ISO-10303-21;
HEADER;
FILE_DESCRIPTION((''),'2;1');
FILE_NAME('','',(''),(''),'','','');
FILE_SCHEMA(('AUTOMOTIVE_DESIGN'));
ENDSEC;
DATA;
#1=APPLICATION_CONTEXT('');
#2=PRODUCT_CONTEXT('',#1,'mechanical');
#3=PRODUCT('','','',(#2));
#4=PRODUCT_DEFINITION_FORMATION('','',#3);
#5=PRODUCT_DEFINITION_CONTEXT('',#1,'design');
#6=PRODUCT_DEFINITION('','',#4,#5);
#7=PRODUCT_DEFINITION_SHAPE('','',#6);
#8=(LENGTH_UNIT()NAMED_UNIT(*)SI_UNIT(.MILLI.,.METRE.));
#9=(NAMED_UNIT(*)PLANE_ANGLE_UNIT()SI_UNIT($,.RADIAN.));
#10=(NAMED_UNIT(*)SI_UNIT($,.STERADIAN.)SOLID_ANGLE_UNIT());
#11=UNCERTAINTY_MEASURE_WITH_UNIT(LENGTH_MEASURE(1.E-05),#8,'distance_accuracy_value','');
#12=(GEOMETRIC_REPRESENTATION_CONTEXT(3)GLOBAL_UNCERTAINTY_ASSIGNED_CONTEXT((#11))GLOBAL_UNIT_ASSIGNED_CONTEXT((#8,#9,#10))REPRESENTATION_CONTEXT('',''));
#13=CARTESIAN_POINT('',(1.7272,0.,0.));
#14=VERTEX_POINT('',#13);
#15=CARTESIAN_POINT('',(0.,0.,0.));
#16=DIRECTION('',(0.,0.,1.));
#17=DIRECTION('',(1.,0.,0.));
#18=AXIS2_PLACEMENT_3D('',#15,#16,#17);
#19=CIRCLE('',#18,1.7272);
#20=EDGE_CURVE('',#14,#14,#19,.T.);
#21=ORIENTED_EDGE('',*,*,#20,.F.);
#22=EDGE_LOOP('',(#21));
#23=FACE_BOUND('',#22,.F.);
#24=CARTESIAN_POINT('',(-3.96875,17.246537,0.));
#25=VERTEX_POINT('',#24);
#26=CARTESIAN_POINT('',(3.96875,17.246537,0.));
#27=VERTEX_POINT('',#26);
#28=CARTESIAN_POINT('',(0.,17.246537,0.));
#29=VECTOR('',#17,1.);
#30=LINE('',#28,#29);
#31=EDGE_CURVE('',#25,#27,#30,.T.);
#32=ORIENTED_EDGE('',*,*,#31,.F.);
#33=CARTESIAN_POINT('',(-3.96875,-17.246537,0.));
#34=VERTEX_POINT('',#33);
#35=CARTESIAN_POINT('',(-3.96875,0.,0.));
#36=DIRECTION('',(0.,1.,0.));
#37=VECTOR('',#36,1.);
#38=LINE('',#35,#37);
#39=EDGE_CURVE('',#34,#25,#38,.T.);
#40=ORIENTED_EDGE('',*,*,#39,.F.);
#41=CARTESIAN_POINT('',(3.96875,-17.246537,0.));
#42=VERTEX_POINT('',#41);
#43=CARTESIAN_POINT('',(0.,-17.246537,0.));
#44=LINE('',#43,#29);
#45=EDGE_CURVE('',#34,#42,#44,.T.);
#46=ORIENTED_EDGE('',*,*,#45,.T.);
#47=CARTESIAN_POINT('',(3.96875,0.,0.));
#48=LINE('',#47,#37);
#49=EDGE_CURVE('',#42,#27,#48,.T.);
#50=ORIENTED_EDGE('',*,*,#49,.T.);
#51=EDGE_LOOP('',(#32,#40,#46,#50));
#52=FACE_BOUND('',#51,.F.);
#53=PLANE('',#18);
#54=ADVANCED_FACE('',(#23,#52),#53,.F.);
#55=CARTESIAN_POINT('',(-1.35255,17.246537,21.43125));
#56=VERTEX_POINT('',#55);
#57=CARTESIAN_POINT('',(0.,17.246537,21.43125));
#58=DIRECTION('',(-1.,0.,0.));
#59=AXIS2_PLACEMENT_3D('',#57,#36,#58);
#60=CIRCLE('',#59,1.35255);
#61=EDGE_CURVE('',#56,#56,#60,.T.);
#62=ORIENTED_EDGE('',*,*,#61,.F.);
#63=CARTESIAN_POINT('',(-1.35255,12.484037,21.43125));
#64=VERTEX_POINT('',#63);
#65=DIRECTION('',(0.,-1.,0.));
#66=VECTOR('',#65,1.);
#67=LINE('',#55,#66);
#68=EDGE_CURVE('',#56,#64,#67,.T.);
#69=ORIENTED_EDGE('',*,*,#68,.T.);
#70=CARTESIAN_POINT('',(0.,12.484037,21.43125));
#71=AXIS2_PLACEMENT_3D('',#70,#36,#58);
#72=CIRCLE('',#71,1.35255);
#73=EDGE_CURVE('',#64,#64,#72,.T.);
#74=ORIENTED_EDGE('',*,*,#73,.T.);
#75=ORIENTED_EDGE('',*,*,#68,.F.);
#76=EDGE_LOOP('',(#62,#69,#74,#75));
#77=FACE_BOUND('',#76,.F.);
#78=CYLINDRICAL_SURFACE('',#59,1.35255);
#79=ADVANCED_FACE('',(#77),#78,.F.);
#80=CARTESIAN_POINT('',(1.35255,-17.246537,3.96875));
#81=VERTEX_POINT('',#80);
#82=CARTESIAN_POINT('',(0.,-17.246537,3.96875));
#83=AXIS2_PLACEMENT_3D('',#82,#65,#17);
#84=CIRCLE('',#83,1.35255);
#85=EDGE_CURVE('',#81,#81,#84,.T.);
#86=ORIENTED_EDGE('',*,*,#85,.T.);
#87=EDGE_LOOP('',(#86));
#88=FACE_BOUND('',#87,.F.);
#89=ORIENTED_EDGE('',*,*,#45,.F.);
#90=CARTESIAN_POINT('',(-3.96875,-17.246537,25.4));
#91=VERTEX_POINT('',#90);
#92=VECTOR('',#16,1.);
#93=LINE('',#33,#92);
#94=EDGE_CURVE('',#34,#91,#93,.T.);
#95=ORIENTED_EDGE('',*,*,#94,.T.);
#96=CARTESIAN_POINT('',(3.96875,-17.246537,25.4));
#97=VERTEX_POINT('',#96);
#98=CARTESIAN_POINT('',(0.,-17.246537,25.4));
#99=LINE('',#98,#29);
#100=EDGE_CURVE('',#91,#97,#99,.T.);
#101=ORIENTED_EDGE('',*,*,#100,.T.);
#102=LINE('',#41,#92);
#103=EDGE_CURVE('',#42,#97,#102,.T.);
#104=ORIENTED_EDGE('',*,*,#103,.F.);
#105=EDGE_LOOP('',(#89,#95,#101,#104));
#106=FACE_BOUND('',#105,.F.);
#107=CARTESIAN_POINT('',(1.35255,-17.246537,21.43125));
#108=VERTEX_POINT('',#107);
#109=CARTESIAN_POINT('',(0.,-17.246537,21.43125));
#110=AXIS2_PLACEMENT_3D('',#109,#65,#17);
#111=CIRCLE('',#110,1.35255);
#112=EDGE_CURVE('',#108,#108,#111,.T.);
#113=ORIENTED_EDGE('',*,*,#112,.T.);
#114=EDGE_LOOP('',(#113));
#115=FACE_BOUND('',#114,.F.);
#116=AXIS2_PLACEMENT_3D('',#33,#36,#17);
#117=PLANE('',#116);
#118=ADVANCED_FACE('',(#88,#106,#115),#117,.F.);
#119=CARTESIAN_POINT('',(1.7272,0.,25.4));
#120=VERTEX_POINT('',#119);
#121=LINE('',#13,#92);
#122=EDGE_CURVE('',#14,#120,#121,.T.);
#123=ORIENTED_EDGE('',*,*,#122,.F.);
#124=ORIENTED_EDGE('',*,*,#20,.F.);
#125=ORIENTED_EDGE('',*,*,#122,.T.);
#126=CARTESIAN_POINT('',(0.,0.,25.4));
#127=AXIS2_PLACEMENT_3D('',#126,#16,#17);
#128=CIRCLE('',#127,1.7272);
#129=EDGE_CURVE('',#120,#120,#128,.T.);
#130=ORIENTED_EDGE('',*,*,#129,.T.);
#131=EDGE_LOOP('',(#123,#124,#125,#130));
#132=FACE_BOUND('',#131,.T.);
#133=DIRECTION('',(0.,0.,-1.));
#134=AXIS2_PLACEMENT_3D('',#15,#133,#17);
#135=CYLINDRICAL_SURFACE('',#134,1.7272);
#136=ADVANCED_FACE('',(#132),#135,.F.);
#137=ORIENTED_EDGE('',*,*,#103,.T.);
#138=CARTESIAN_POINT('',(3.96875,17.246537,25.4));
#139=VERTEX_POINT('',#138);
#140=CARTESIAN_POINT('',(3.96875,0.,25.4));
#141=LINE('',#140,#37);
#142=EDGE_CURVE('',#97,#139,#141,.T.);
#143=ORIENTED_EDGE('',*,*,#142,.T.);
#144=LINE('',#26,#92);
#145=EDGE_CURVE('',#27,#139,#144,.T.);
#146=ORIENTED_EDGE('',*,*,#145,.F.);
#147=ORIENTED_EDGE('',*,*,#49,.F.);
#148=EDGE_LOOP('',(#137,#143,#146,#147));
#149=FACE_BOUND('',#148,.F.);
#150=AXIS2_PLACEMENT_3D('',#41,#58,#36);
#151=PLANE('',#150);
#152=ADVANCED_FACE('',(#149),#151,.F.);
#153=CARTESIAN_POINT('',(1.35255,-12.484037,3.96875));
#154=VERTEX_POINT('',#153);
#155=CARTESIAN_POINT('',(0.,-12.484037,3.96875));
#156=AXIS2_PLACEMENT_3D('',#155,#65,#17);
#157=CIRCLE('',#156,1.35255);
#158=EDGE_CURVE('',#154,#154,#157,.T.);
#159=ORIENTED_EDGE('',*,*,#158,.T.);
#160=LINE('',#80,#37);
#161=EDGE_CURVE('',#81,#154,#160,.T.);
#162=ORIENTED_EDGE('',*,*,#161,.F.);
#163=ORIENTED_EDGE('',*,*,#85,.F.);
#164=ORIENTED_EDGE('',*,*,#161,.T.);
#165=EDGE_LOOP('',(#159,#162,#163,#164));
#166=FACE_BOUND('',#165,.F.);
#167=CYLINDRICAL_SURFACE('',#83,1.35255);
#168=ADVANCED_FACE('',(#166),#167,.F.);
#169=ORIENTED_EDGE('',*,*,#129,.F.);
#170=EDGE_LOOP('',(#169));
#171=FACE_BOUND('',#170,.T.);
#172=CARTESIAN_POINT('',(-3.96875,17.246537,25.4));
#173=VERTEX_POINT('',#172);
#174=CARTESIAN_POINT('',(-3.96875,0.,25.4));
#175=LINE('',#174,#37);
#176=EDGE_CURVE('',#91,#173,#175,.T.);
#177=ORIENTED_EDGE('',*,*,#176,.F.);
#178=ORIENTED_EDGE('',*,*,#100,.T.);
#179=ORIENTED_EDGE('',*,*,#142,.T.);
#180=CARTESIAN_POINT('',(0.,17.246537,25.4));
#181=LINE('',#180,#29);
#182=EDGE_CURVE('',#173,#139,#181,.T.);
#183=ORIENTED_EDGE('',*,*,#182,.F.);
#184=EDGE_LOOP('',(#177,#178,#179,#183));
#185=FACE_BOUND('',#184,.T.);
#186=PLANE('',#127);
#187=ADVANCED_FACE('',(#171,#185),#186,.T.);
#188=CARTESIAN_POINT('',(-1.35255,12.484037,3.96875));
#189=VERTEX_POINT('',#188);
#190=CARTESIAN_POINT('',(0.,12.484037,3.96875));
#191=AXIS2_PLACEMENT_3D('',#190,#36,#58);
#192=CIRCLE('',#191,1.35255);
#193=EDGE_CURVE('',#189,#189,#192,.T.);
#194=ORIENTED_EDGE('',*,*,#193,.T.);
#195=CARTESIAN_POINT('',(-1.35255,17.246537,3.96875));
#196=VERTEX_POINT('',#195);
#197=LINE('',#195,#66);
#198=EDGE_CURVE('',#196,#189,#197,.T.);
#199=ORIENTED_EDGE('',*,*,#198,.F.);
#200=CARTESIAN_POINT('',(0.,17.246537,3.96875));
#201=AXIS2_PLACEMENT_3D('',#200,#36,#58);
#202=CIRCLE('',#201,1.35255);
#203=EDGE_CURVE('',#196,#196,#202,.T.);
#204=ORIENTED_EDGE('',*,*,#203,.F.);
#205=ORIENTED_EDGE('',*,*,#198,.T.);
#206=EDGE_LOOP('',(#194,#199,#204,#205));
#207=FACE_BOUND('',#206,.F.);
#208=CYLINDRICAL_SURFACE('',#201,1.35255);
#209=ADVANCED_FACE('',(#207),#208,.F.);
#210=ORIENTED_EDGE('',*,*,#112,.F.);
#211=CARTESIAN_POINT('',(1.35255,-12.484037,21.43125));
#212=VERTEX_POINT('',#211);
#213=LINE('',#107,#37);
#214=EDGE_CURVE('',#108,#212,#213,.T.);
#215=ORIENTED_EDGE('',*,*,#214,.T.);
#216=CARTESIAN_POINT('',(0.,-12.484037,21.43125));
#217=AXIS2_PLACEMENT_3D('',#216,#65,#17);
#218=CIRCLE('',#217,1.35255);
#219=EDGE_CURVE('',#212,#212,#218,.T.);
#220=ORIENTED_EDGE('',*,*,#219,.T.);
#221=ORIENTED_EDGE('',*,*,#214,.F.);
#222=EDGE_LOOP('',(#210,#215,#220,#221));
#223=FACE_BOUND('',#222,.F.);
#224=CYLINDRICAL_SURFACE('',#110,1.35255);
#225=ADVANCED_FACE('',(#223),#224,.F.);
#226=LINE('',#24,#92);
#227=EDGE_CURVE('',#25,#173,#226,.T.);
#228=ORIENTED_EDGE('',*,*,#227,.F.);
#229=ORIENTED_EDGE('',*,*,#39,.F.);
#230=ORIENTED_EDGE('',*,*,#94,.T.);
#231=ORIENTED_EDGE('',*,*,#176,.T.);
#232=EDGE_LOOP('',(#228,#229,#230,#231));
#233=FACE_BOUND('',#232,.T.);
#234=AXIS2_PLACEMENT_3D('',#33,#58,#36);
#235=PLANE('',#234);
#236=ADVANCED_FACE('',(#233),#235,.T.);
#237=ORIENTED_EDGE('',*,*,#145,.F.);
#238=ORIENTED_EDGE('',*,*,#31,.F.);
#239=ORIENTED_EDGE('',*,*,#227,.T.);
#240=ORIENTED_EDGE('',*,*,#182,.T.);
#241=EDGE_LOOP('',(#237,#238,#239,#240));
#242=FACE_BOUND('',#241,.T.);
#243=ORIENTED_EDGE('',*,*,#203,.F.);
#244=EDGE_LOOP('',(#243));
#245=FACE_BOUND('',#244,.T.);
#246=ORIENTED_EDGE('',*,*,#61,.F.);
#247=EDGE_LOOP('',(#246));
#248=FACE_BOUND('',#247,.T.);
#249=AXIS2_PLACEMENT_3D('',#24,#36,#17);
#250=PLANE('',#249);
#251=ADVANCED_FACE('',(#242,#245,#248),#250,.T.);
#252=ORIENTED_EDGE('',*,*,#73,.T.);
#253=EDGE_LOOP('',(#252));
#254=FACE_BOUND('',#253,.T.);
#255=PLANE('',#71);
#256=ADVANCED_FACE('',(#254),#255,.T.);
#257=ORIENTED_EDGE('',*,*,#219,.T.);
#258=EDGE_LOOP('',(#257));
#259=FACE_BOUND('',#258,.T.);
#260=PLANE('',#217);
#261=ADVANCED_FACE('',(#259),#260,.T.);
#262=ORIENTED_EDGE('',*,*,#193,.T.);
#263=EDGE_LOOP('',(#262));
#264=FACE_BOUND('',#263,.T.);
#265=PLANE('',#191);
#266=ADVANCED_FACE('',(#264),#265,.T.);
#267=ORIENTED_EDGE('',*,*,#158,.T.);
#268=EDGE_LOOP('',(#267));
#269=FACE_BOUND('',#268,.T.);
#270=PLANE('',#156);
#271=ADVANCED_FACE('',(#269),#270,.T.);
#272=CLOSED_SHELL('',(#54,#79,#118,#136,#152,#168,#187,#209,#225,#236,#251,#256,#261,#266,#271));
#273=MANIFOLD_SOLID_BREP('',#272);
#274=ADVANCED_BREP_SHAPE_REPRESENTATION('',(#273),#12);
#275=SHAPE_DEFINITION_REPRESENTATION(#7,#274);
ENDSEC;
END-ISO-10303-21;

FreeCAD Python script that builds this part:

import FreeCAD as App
import Part
import Sketcher

V = App.Vector
Q = App.Units.Quantity


def add_polygon(sketch, points):
    """Adds a closed chain of lines whose ends are joined by coincident constraints."""
    first, n = sketch.GeometryCount, len(points)
    for a, b in zip(points, points[1:] + points[:1]):
        sketch.addGeometry(Part.LineSegment(App.Vector(*a, 0), App.Vector(*b, 0)), False)
    for i in range(n):
        sketch.addConstraint(Sketcher.Constraint("Coincident", first + i, 2, first + (i + 1) % n, 1))

doc = App.newDocument("Part")
params = doc.addObject("Spreadsheet::Sheet", "Params")
for row, (alias, value) in enumerate([
    ("sketch1_diameter", "0.136 in"),
    ("sketch1_width", "0.3125 in"),
    ("pad1_length", "1 in"),
    ("pocket1_length", "0.1875 in"),
    ("pocket2_length", "0.1875 in"),
], start=1):
    params.set(f"A{row}", alias)
    params.set(f"B{row}", "=" + value)
    params.setAlias(f"B{row}", alias)

body = doc.addObject("PartDesign::Body", "Body")

sketch1 = doc.addObject("Sketcher::SketchObject", "Sketch")
body.addObject(sketch1)
sketch1.AttachmentSupport = (doc.XY_Plane, [""])
sketch1.MapMode = "FlatFace"
add_polygon(sketch1, [(-4, 17.2), (-4, -17.2), (4, -17.2), (4, 17.2)])
sketch1.addGeometry(Part.Circle(V(0, 0, 0), V(0, 0, 1), 1.7), False)
sketch1.addConstraint([
    Sketcher.Constraint("Vertical", 0),
    Sketcher.Constraint("Horizontal", 1),
    Sketcher.Constraint("Vertical", 2),
    Sketcher.Constraint("Horizontal", 3),
    Sketcher.Constraint("Coincident", 4, 3, -1, 1),
    Sketcher.Constraint("Symmetric", 0, 2, 2, 2, -1, 1),
    Sketcher.Constraint("Diameter", 4, Q("0.136 in")),
    Sketcher.Constraint("DistanceX", 1, 1, 1, 2, Q("0.3125 in")),
    Sketcher.Constraint("DistanceY", 0, 2, 0, 1, Q("34.493074 mm")),
])
sketch1.setExpression("Constraints[10]", "Params.sketch1_diameter")
sketch1.setExpression("Constraints[11]", "Params.sketch1_width")
pad1 = doc.addObject("PartDesign::Pad", "Pad")
body.addObject(pad1)
pad1.Profile = sketch1
pad1.setExpression("Length", "Params.pad1_length")

sketch2 = doc.addObject("Sketcher::SketchObject", "Sketch001")
body.addObject(sketch2)
sketch2.AttachmentSupport = (doc.XZ_Plane, [""])
sketch2.MapMode = "FlatFace"
sketch2.AttachmentOffset = App.Placement(V(0, 0, -17.246537), App.Rotation())
sketch2.addGeometry([
    Part.Circle(V(0, 4, 0), V(0, 0, 1), 1.4),
    Part.Circle(V(0, 21.4, 0), V(0, 0, 1), 1.4),
], False)
sketch2.addConstraint([
    Sketcher.Constraint("Equal", 0, 1),
    Sketcher.Constraint("PointOnObject", 0, 3, -2),
    Sketcher.Constraint("PointOnObject", 1, 3, -2),
    Sketcher.Constraint("Diameter", 0, Q("0.1065 in")),
    Sketcher.Constraint("DistanceY", -1, 1, 0, 3, Q("0.15625 in")),
    Sketcher.Constraint("DistanceY", -1, 1, 1, 3, Q("0.84375 in")),
])
pocket1 = doc.addObject("PartDesign::Pocket", "Pocket")
body.addObject(pocket1)
pocket1.Profile = sketch2
pocket1.setExpression("Length", "Params.pocket1_length")
pocket1.Reversed = True

sketch3 = doc.addObject("Sketcher::SketchObject", "Sketch002")
body.addObject(sketch3)
sketch3.AttachmentSupport = (doc.XZ_Plane, [""])
sketch3.MapMode = "FlatFace"
sketch3.AttachmentOffset = App.Placement(V(0, 0, 17.246537), App.Rotation())
sketch3.addGeometry([
    Part.Circle(V(0, 21.4, 0), V(0, 0, 1), 1.4),
    Part.Circle(V(0, 4, 0), V(0, 0, 1), 1.4),
], False)
sketch3.addConstraint([
    Sketcher.Constraint("Equal", 0, 1),
    Sketcher.Constraint("PointOnObject", 0, 3, -2),
    Sketcher.Constraint("PointOnObject", 1, 3, -2),
    Sketcher.Constraint("Diameter", 0, Q("0.1065 in")),
    Sketcher.Constraint("DistanceY", -1, 1, 0, 3, Q("0.84375 in")),
    Sketcher.Constraint("DistanceY", -1, 1, 1, 3, Q("0.15625 in")),
])
pocket2 = doc.addObject("PartDesign::Pocket", "Pocket001")
body.addObject(pocket2)
pocket2.Profile = sketch3
pocket2.setExpression("Length", "Params.pocket2_length")

doc.recompute()
